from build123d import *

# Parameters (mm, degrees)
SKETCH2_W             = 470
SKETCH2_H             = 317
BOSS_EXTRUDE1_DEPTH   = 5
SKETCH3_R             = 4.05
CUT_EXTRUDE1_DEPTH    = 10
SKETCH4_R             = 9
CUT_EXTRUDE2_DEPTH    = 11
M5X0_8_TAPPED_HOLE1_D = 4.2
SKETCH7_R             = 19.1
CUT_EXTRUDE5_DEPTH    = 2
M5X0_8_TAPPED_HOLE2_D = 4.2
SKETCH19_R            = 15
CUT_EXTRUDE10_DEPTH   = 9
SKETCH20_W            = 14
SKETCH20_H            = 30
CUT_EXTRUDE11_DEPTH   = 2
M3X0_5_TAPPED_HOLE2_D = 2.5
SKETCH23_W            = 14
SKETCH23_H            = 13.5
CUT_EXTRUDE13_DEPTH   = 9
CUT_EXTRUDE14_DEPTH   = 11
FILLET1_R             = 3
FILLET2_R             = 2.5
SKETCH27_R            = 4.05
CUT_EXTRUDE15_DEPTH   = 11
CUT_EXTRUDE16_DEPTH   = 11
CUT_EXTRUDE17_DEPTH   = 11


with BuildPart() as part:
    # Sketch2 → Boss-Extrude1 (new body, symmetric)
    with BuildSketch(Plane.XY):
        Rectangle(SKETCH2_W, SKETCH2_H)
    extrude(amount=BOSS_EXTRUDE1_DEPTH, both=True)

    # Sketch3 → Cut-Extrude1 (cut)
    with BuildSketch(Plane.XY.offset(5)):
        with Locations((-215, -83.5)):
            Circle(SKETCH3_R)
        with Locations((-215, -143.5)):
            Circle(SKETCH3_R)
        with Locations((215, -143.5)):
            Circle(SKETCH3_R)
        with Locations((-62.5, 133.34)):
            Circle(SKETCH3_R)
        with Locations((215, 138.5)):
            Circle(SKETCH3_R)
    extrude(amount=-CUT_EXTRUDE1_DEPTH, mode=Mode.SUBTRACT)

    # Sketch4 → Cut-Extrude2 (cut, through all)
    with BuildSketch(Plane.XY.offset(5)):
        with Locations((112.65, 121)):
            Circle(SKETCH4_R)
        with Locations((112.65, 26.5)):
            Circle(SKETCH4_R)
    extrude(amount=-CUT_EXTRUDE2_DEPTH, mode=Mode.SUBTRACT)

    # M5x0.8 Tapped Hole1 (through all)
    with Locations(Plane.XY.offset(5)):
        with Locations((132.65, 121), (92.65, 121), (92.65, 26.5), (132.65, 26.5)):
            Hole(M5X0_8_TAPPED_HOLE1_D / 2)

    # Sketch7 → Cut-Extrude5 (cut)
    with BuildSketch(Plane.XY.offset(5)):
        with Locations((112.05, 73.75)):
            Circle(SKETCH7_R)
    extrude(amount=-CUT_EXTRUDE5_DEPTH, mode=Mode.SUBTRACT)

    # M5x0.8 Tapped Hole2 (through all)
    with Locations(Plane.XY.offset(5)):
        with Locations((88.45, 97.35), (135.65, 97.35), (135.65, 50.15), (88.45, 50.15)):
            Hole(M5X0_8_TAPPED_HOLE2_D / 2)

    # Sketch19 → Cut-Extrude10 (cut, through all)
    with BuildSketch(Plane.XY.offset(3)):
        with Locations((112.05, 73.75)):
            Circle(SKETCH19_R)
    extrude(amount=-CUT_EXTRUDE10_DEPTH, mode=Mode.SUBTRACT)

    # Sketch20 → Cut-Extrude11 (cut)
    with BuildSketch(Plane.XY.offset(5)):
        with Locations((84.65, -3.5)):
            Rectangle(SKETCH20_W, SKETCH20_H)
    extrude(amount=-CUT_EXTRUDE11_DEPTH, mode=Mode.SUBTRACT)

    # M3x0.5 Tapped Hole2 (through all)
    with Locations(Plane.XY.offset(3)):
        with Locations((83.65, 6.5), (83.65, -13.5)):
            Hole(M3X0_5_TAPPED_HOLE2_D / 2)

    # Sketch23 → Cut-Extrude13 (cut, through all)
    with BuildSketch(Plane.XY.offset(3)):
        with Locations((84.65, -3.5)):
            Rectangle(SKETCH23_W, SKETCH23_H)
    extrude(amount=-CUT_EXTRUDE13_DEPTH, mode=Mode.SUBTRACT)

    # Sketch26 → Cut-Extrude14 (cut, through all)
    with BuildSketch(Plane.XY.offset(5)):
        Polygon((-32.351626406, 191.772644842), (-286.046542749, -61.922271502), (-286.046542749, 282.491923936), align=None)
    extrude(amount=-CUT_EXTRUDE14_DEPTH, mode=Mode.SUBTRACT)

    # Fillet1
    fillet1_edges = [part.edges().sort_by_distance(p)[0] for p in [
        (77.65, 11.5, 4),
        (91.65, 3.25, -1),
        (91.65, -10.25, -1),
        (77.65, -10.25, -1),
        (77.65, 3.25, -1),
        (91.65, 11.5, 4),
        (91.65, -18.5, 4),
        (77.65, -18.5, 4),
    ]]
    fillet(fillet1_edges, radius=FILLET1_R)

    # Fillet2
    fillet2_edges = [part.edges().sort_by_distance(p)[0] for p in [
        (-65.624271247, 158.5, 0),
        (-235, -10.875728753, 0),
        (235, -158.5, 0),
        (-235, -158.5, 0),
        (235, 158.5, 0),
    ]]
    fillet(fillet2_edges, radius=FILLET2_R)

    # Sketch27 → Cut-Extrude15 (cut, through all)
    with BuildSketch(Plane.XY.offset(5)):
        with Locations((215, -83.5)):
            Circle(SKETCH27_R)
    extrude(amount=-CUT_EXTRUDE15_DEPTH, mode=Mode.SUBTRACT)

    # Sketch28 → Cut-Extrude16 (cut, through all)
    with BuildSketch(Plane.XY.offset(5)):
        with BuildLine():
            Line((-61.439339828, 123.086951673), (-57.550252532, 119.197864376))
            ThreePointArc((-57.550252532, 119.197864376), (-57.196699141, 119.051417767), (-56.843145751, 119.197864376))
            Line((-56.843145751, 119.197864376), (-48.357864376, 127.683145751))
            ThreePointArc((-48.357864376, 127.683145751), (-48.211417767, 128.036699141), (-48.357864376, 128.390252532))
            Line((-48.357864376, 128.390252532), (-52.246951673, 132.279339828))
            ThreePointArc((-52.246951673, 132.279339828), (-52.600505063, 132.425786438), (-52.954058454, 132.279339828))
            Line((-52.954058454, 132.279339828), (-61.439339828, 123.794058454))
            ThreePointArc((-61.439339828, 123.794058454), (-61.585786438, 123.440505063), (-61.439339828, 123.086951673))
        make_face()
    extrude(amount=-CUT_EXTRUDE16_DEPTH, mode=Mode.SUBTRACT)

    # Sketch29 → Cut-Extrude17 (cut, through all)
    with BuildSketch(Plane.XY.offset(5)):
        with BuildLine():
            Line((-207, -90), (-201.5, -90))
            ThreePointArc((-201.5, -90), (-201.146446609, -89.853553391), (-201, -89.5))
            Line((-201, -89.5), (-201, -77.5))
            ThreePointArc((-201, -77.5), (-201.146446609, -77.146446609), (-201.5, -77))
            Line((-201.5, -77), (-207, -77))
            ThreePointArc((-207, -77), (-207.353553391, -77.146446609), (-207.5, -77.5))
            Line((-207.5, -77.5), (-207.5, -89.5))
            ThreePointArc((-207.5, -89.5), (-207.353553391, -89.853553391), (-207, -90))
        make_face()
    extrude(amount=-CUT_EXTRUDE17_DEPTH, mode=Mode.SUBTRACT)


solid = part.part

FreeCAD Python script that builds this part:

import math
import FreeCAD as App
import Part
import Sketcher
from FreeCAD import Vector
Q = App.Units.Quantity


def edges_at(feature, points):
    """Names of the edges that pass closest to the given points."""
    edges = feature.Shape.Edges
    near = lambda p: min(range(len(edges)), key=lambda i: edges[i].distToShape(Part.Vertex(*p))[0])
    return sorted({f"Edge{near(p) + 1}" for p in points})


def add_polygon(sketch, points):
    """Adds a closed chain of lines whose ends are joined by coincident constraints."""
    first, n = sketch.GeometryCount, len(points)
    for a, b in zip(points, points[1:] + points[:1]):
        sketch.addGeometry(Part.LineSegment(App.Vector(*a, 0), App.Vector(*b, 0)), False)
    for i in range(n):
        sketch.addConstraint(Sketcher.Constraint("Coincident", first + i, 2, first + (i + 1) % n, 1))

doc = App.newDocument("Part")
body = doc.addObject("PartDesign::Body", "Body")

sketch1 = body.newObject("Sketcher::SketchObject", "Sketch")
sketch1.AttachmentSupport = (doc.getObject("XY_Plane"), [""])
sketch1.MapMode = "FlatFace"
add_polygon(sketch1, [(-235, 158), (-235, -158), (235, -158), (235, 158)])
sketch1.addConstraint(Sketcher.Constraint("Vertical", 0))
sketch1.addConstraint(Sketcher.Constraint("Horizontal", 1))
sketch1.addConstraint(Sketcher.Constraint("Vertical", 2))
sketch1.addConstraint(Sketcher.Constraint("Horizontal", 3))
sketch1.addConstraint(Sketcher.Constraint("Symmetric", 0, 2, 2, 2, -1, 1))
sketch1.addConstraint(Sketcher.Constraint("DistanceX", 1, 1, 1, 2, Q("470 mm")))
sketch1.addConstraint(Sketcher.Constraint("DistanceY", 0, 2, 0, 1, Q("317 mm")))
pad1 = body.newObject("PartDesign::Pad", "Pad")
pad1.Profile = sketch1
pad1.Length = 10
pad1.Midplane = True

sketch2 = body.newObject("Sketcher::SketchObject", "Sketch001")
sketch2.AttachmentSupport = (doc.getObject("XY_Plane"), [""])
sketch2.MapMode = "FlatFace"
sketch2.AttachmentOffset = App.Placement(Vector(0, 0, 5), App.Rotation())
sketch2.addGeometry(Part.Circle(Vector(-215, -83.5, 0), Vector(0, 0, 1), 4), False)
sketch2.addGeometry(Part.Circle(Vector(-215, -143.5, 0), Vector(0, 0, 1), 4), False)
sketch2.addGeometry(Part.Circle(Vector(215, -143.5, 0), Vector(0, 0, 1), 4), False)
sketch2.addGeometry(Part.Circle(Vector(-62.5, 133.3, 0), Vector(0, 0, 1), 4), False)
sketch2.addGeometry(Part.Circle(Vector(215, 138.5, 0), Vector(0, 0, 1), 4), False)
sketch2.addConstraint(Sketcher.Constraint("Equal", 0, 1))
sketch2.addConstraint(Sketcher.Constraint("Equal", 1, 2))
sketch2.addConstraint(Sketcher.Constraint("Equal", 2, 3))
sketch2.addConstraint(Sketcher.Constraint("Equal", 3, 4))
sketch2.addConstraint(Sketcher.Constraint("Symmetric", 1, 3, 2, 3, -2))
sketch2.addConstraint(Sketcher.Constraint("Vertical", 0, 3, 1, 3))
sketch2.addConstraint(Sketcher.Constraint("Vertical", 2, 3, 4, 3))
sketch2.addConstraint(Sketcher.Constraint("Diameter", 0, Q("8.1 mm")))
sketch2.addConstraint(Sketcher.Constraint("DistanceX", 0, 3, -1, 1, Q("215 mm")))
sketch2.addConstraint(Sketcher.Constraint("DistanceY", 1, 3, 0, 3, Q("60 mm")))
sketch2.addConstraint(Sketcher.Constraint("DistanceY", 2, 3, 4, 3, Q("282 mm")))
sketch2.addConstraint(Sketcher.Constraint("DistanceY", 0, 3, -1, 1, Q("83.5 mm")))
sketch2.addConstraint(Sketcher.Constraint("DistanceX", 3, 3, -1, 1, Q("62.5 mm")))
sketch2.addConstraint(Sketcher.Constraint("DistanceY", -1, 1, 3, 3, Q("133.34 mm")))
pocket1 = body.newObject("PartDesign::Pocket", "Pocket")
pocket1.Profile = sketch2
pocket1.Length = 10

sketch3 = body.newObject("Sketcher::SketchObject", "Sketch002")
sketch3.AttachmentSupport = (doc.getObject("XY_Plane"), [""])
sketch3.MapMode = "FlatFace"
sketch3.AttachmentOffset = App.Placement(Vector(0, 0, 5), App.Rotation())
sketch3.addGeometry(Part.Circle(Vector(113, 121, 0), Vector(0, 0, 1), 9), False)
sketch3.addGeometry(Part.Circle(Vector(113, 26, 0), Vector(0, 0, 1), 9), False)
sketch3.addConstraint(Sketcher.Constraint("Equal", 0, 1))
sketch3.addConstraint(Sketcher.Constraint("Vertical", 0, 3, 1, 3))
sketch3.addConstraint(Sketcher.Constraint("Diameter", 0, Q("18 mm")))
sketch3.addConstraint(Sketcher.Constraint("DistanceY", -1, 1, 0, 3, Q("121 mm")))
sketch3.addConstraint(Sketcher.Constraint("DistanceY", -1, 1, 1, 3, Q("26.5 mm")))
sketch3.addConstraint(Sketcher.Constraint("DistanceX", -1, 1, 0, 3, Q("112.65 mm")))
pocket2 = body.newObject("PartDesign::Pocket", "Pocket001")
pocket2.Profile = sketch3
pocket2.Type = "ThroughAll"

sketch4 = body.newObject("Sketcher::SketchObject", "Sketch003")
sketch4.AttachmentSupport = (doc.getObject("XY_Plane"), [""])
sketch4.MapMode = "FlatFace"
sketch4.AttachmentOffset = App.Placement(Vector(0, 0, 5), App.Rotation())
sketch4.addGeometry(Part.Circle(Vector(132.7, 121, 0), Vector(0, 0, 1), 2.1), False)
sketch4.addGeometry(Part.Circle(Vector(92.7, 121, 0), Vector(0, 0, 1), 2.1), False)
sketch4.addGeometry(Part.Circle(Vector(92.7, 26.5, 0), Vector(0, 0, 1), 2.1), False)
sketch4.addGeometry(Part.Circle(Vector(132.7, 26.5, 0), Vector(0, 0, 1), 2.1), False)
sketch4.addConstraint(Sketcher.Constraint("Equal", 0, 1))
sketch4.addConstraint(Sketcher.Constraint("Equal", 1, 2))
sketch4.addConstraint(Sketcher.Constraint("Equal", 2, 3))
sketch4.addConstraint(Sketcher.Constraint("Horizontal", 0, 3, 1, 3))
sketch4.addConstraint(Sketcher.Constraint("Horizontal", 2, 3, 3, 3))
sketch4.addConstraint(Sketcher.Constraint("Vertical", 1, 3, 2, 3))
sketch4.addConstraint(Sketcher.Constraint("Vertical", 0, 3, 3, 3))
sketch4.addConstraint(Sketcher.Constraint("Diameter", 0, Q("4.2 mm")))
sketch4.addConstraint(Sketcher.Constraint("DistanceY", -1, 1, 0, 3, Q("121 mm")))
sketch4.addConstraint(Sketcher.Constraint("DistanceX", 1, 3, 0, 3, Q("40 mm")))
sketch4.addConstraint(Sketcher.Constraint("DistanceY", -1, 1, 2, 3, Q("26.5 mm")))
sketch4.addConstraint(Sketcher.Constraint("DistanceX", -1, 1, 0, 3, Q("132.65 mm")))
doc.recompute()
hole = body.newObject("PartDesign::Hole", "Hole")
hole.Profile = sketch4
hole.ThreadType = "None"
hole.Diameter = 4.2
hole.DepthType = "ThroughAll"

sketch5 = body.newObject("Sketcher::SketchObject", "Sketch004")
sketch5.AttachmentSupport = (doc.getObject("XY_Plane"), [""])
sketch5.MapMode = "FlatFace"
sketch5.AttachmentOffset = App.Placement(Vector(0, 0, 5), App.Rotation())
sketch5.addGeometry(Part.Circle(Vector(112, 74, 0), Vector(0, 0, 1), 19), False)
sketch5.addConstraint(Sketcher.Constraint("Diameter", 0, Q("38.2 mm")))
sketch5.addConstraint(Sketcher.Constraint("DistanceX", -1, 1, 0, 3, Q("112.05 mm")))
sketch5.addConstraint(Sketcher.Constraint("DistanceY", -1, 1, 0, 3, Q("73.75 mm")))
pocket3 = body.newObject("PartDesign::Pocket", "Pocket002")
pocket3.Profile = sketch5
pocket3.Length = 2

sketch6 = body.newObject("Sketcher::SketchObject", "Sketch005")
sketch6.AttachmentSupport = (doc.getObject("XY_Plane"), [""])
sketch6.MapMode = "FlatFace"
sketch6.AttachmentOffset = App.Placement(Vector(0, 0, 5), App.Rotation())
sketch6.addGeometry(Part.Circle(Vector(88.5, 97.3, 0), Vector(0, 0, 1), 2.1), False)
sketch6.addGeometry(Part.Circle(Vector(135.7, 97.3, 0), Vector(0, 0, 1), 2.1), False)
sketch6.addGeometry(Part.Circle(Vector(135.7, 50.1, 0), Vector(0, 0, 1), 2.1), False)
sketch6.addGeometry(Part.Circle(Vector(88.5, 50.1, 0), Vector(0, 0, 1), 2.1), False)
sketch6.addConstraint(Sketcher.Constraint("Equal", 0, 1))
sketch6.addConstraint(Sketcher.Constraint("Equal", 1, 2))
sketch6.addConstraint(Sketcher.Constraint("Equal", 2, 3))
sketch6.addConstraint(Sketcher.Constraint("Horizontal", 0, 3, 1, 3))
sketch6.addConstraint(Sketcher.Constraint("Horizontal", 2, 3, 3, 3))
sketch6.addConstraint(Sketcher.Constraint("Vertical", 1, 3, 2, 3))
sketch6.addConstraint(Sketcher.Constraint("Vertical", 0, 3, 3, 3))
sketch6.addConstraint(Sketcher.Constraint("Diameter", 0, Q("4.2 mm")))
sketch6.addConstraint(Sketcher.Constraint("DistanceX", 0, 3, 1, 3, Q("47.2 mm")))
sketch6.addConstraint(Sketcher.Constraint("DistanceY", 2, 3, 1, 3, Q("47.2 mm")))
sketch6.addConstraint(Sketcher.Constraint("DistanceX", -1, 1, 0, 3, Q("88.45 mm")))
sketch6.addConstraint(Sketcher.Constraint("DistanceY", -1, 1, 0, 3, Q("97.35 mm")))
doc.recompute()
hole2 = body.newObject("PartDesign::Hole", "Hole001")
hole2.Profile = sketch6
hole2.ThreadType = "None"
hole2.Diameter = 4.2
hole2.DepthType = "ThroughAll"

sketch7 = body.newObject("Sketcher::SketchObject", "Sketch006")
sketch7.AttachmentSupport = (doc.getObject("XY_Plane"), [""])
sketch7.MapMode = "FlatFace"
sketch7.AttachmentOffset = App.Placement(Vector(0, 0, 3), App.Rotation())
sketch7.addGeometry(Part.Circle(Vector(112, 74, 0), Vector(0, 0, 1), 15), False)
sketch7.addConstraint(Sketcher.Constraint("Diameter", 0, Q("30 mm")))
sketch7.addConstraint(Sketcher.Constraint("DistanceX", -1, 1, 0, 3, Q("112.05 mm")))
sketch7.addConstraint(Sketcher.Constraint("DistanceY", -1, 1, 0, 3, Q("73.75 mm")))
pocket4 = body.newObject("PartDesign::Pocket", "Pocket003")
pocket4.Profile = sketch7
pocket4.Type = "ThroughAll"

sketch8 = body.newObject("Sketcher::SketchObject", "Sketch007")
sketch8.AttachmentSupport = (doc.getObject("XY_Plane"), [""])
sketch8.MapMode = "FlatFace"
sketch8.AttachmentOffset = App.Placement(Vector(0, 0, 5), App.Rotation())
add_polygon(sketch8, [(78, 12), (78, -18), (92, -18), (92, 12)])
sketch8.addConstraint(Sketcher.Constraint("Vertical", 0))
sketch8.addConstraint(Sketcher.Constraint("Horizontal", 1))
sketch8.addConstraint(Sketcher.Constraint("Vertical", 2))
sketch8.addConstraint(Sketcher.Constraint("Horizontal", 3))
sketch8.addConstraint(Sketcher.Constraint("DistanceX", 1, 1, 1, 2, Q("14 mm")))
sketch8.addConstraint(Sketcher.Constraint("DistanceY", 0, 2, 0, 1, Q("30 mm")))
sketch8.addConstraint(Sketcher.Constraint("DistanceY", 0, 2, -1, 1, Q("18.5 mm")))
sketch8.addConstraint(Sketcher.Constraint("DistanceX", -1, 1, 0, 2, Q("77.65 mm")))
pocket5 = body.newObject("PartDesign::Pocket", "Pocket004")
pocket5.Profile = sketch8
pocket5.Length = 2

sketch9 = body.newObject("Sketcher::SketchObject", "Sketch008")
sketch9.AttachmentSupport = (doc.getObject("XY_Plane"), [""])
sketch9.MapMode = "FlatFace"
sketch9.AttachmentOffset = App.Placement(Vector(0, 0, 3), App.Rotation())
sketch9.addGeometry(Part.Circle(Vector(83.7, 6.5, 0), Vector(0, 0, 1), 1.2), False)
sketch9.addGeometry(Part.Circle(Vector(83.7, -13.5, 0), Vector(0, 0, 1), 1.2), False)
sketch9.addConstraint(Sketcher.Constraint("Equal", 0, 1))
sketch9.addConstraint(Sketcher.Constraint("Vertical", 0, 3, 1, 3))
sketch9.addConstraint(Sketcher.Constraint("Diameter", 0, Q("2.5 mm")))
sketch9.addConstraint(Sketcher.Constraint("DistanceY", 1, 3, 0, 3, Q("20 mm")))
sketch9.addConstraint(Sketcher.Constraint("DistanceY", -1, 1, 0, 3, Q("6.5 mm")))
sketch9.addConstraint(Sketcher.Constraint("DistanceX", -1, 1, 0, 3, Q("83.65 mm")))
doc.recompute()
hole3 = body.newObject("PartDesign::Hole", "Hole002")
hole3.Profile = sketch9
hole3.ThreadType = "None"
hole3.Diameter = 2.5
hole3.DepthType = "ThroughAll"

sketch10 = body.newObject("Sketcher::SketchObject", "Sketch009")
sketch10.AttachmentSupport = (doc.getObject("XY_Plane"), [""])
sketch10.MapMode = "FlatFace"
sketch10.AttachmentOffset = App.Placement(Vector(0, 0, 3), App.Rotation())
add_polygon(sketch10, [(78, 3), (78, -10), (92, -10), (92, 3)])
sketch10.addConstraint(Sketcher.Constraint("Vertical", 0))
sketch10.addConstraint(Sketcher.Constraint("Horizontal", 1))
sketch10.addConstraint(Sketcher.Constraint("Vertical", 2))
sketch10.addConstraint(Sketcher.Constraint("Horizontal", 3))
sketch10.addConstraint(Sketcher.Constraint("DistanceX", 1, 1, 1, 2, Q("14 mm")))
sketch10.addConstraint(Sketcher.Constraint("DistanceY", 0, 2, 0, 1, Q("13.5 mm")))
sketch10.addConstraint(Sketcher.Constraint("DistanceX", -1, 1, 0, 2, Q("77.65 mm")))
sketch10.addConstraint(Sketcher.Constraint("DistanceY", 0, 2, -1, 1, Q("10.25 mm")))
pocket6 = body.newObject("PartDesign::Pocket", "Pocket005")
pocket6.Profile = sketch10
pocket6.Type = "ThroughAll"

sketch11 = body.newObject("Sketcher::SketchObject", "Sketch010")
sketch11.AttachmentSupport = (doc.getObject("XY_Plane"), [""])
sketch11.MapMode = "FlatFace"
sketch11.AttachmentOffset = App.Placement(Vector(0, 0, 5), App.Rotation())
add_polygon(sketch11, [(-286, -62), (-32, 192), (-286, 282)])
sketch11.addConstraint(Sketcher.Constraint("Vertical", 2))
sketch11.addConstraint(Sketcher.Constraint("Angle", 0, Q("45 deg")))
sketch11.addConstraint(Sketcher.Constraint("Distance", 0, Q("358.778791 mm")))
sketch11.addConstraint(Sketcher.Constraint("DistanceY", 2, 2, 2, 1, Q("344.414195 mm")))
sketch11.addConstraint(Sketcher.Constraint("DistanceY", 2, 2, -1, 1, Q("61.922272 mm")))
sketch11.addConstraint(Sketcher.Constraint("DistanceX", 0, 2, -1, 1, Q("32.351626 mm")))
pocket7 = body.newObject("PartDesign::Pocket", "Pocket006")
pocket7.Profile = sketch11
pocket7.Type = "ThroughAll"
doc.recompute()

fillet = body.newObject("PartDesign::Fillet", "Fillet")
fillet.Base = (pocket7, edges_at(pocket7, [
    (77.65, 11.5, 4),
    (91.65, 3.25, -1),
    (91.65, -10.25, -1),
    (77.65, -10.25, -1),
    (77.65, 3.25, -1),
    (91.65, 11.5, 4),
    (91.65, -18.5, 4),
    (77.65, -18.5, 4),
]))
fillet.Radius = 3
doc.recompute()

fillet2 = body.newObject("PartDesign::Fillet", "Fillet001")
fillet2.Base = (fillet, edges_at(fillet, [
    (-65.624, 158.5, 0),
    (-235, -10.876, 0),
    (235, -158.5, 0),
    (-235, -158.5, 0),
    (235, 158.5, 0),
]))
fillet2.Radius = 2.5

sketch12 = body.newObject("Sketcher::SketchObject", "Sketch011")
sketch12.AttachmentSupport = (doc.getObject("XY_Plane"), [""])
sketch12.MapMode = "FlatFace"
sketch12.AttachmentOffset = App.Placement(Vector(0, 0, 5), App.Rotation())
sketch12.addGeometry(Part.Circle(Vector(215, -83.5, 0), Vector(0, 0, 1), 4), False)
sketch12.addConstraint(Sketcher.Constraint("Diameter", 0, Q("8.1 mm")))
sketch12.addConstraint(Sketcher.Constraint("DistanceX", -1, 1, 0, 3, Q("215 mm")))
sketch12.addConstraint(Sketcher.Constraint("DistanceY", 0, 3, -1, 1, Q("83.5 mm")))
pocket8 = body.newObject("PartDesign::Pocket", "Pocket007")
pocket8.Profile = sketch12
pocket8.Type = "ThroughAll"

sketch13 = body.newObject("Sketcher::SketchObject", "Sketch012")
sketch13.AttachmentSupport = (doc.getObject("XY_Plane"), [""])
sketch13.MapMode = "FlatFace"
sketch13.AttachmentOffset = App.Placement(Vector(0, 0, 5), App.Rotation())
sketch13.addGeometry(Part.LineSegment(Vector(-61.44, 123.09, 0), Vector(-57.55, 119.2, 0)), False)
sketch13.addGeometry(Part.ArcOfCircle(Part.Circle(Vector(-57.2, 119.55, 0), Vector(0, 0, 1), 0.5), math.radians(-135), math.radians(-45)), False)
sketch13.addGeometry(Part.LineSegment(Vector(-56.84, 119.2, 0), Vector(-48.36, 127.68, 0)), False)
sketch13.addGeometry(Part.ArcOfCircle(Part.Circle(Vector(-48.71, 128.04, 0), Vector(0, 0, 1), 0.5), math.radians(-45), math.radians(45)), False)
sketch13.addGeometry(Part.LineSegment(Vector(-48.36, 128.39, 0), Vector(-52.25, 132.28, 0)), False)
sketch13.addGeometry(Part.ArcOfCircle(Part.Circle(Vector(-52.6, 131.93, 0), Vector(0, 0, 1), 0.5), math.radians(45), math.radians(135)), False)
sketch13.addGeometry(Part.LineSegment(Vector(-52.95, 132.28, 0), Vector(-61.44, 123.79, 0)), False)
sketch13.addGeometry(Part.ArcOfCircle(Part.Circle(Vector(-61.09, 123.44, 0), Vector(0, 0, 1), 0.5), math.radians(135), math.radians(225)), False)
sketch13.addConstraint(Sketcher.Constraint("Tangent", 0, 2, 1, 1))
sketch13.addConstraint(Sketcher.Constraint("Tangent", 1, 2, 2, 1))
sketch13.addConstraint(Sketcher.Constraint("Tangent", 2, 2, 3, 1))
sketch13.addConstraint(Sketcher.Constraint("Tangent", 3, 2, 4, 1))
sketch13.addConstraint(Sketcher.Constraint("Tangent", 4, 2, 5, 1))
sketch13.addConstraint(Sketcher.Constraint("Tangent", 5, 2, 6, 1))
sketch13.addConstraint(Sketcher.Constraint("Tangent", 6, 2, 7, 1))
sketch13.addConstraint(Sketcher.Constraint("Tangent", 7, 2, 0, 1))
sketch13.addConstraint(Sketcher.Constraint("Equal", 1, 3))
sketch13.addConstraint(Sketcher.Constraint("Equal", 3, 5))
sketch13.addConstraint(Sketcher.Constraint("Equal", 5, 7))
sketch13.addConstraint(Sketcher.Constraint("Perpendicular", 0, 2))
sketch13.addConstraint(Sketcher.Constraint("Perpendicular", 2, 4))
sketch13.addConstraint(Sketcher.Constraint("Perpendicular", 4, 6))
sketch13.addConstraint(Sketcher.Constraint("Horizontal", 0, 2, 1, 2))
sketch13.addConstraint(Sketcher.Constraint("Radius", 1, Q("0.5 mm")))
sketch13.addConstraint(Sketcher.Constraint("Distance", 2, Q("12 mm")))
sketch13.addConstraint(Sketcher.Constraint("Distance", 0, Q("5.5 mm")))
sketch13.addConstraint(Sketcher.Constraint("DistanceX", 1, 3, -1, 1, Q("57.196699 mm")))
sketch13.addConstraint(Sketcher.Constraint("DistanceY", -1, 1, 3, 3, Q("128.036699 mm")))
pocket9 = body.newObject("PartDesign::Pocket", "Pocket008")
pocket9.Profile = sketch13
pocket9.Type = "ThroughAll"

sketch14 = body.newObject("Sketcher::SketchObject", "Sketch013")
sketch14.AttachmentSupport = (doc.getObject("XY_Plane"), [""])
sketch14.MapMode = "FlatFace"
sketch14.AttachmentOffset = App.Placement(Vector(0, 0, 5), App.Rotation())
sketch14.addGeometry(Part.LineSegment(Vector(-207, -90, 0), Vector(-201.5, -90, 0)), False)
sketch14.addGeometry(Part.ArcOfCircle(Part.Circle(Vector(-201.5, -89.5, 0), Vector(0, 0, 1), 0.5), math.radians(-90), math.radians(0)), False)
sketch14.addGeometry(Part.LineSegment(Vector(-201, -89.5, 0), Vector(-201, -77.5, 0)), False)
sketch14.addGeometry(Part.ArcOfCircle(Part.Circle(Vector(-201.5, -77.5, 0), Vector(0, 0, 1), 0.5), math.radians(0), math.radians(90)), False)
sketch14.addGeometry(Part.LineSegment(Vector(-201.5, -77, 0), Vector(-207, -77, 0)), False)
sketch14.addGeometry(Part.ArcOfCircle(Part.Circle(Vector(-207, -77.5, 0), Vector(0, 0, 1), 0.5), math.radians(90), math.radians(180)), False)
sketch14.addGeometry(Part.LineSegment(Vector(-207.5, -77.5, 0), Vector(-207.5, -89.5, 0)), False)
sketch14.addGeometry(Part.ArcOfCircle(Part.Circle(Vector(-207, -89.5, 0), Vector(0, 0, 1), 0.5), math.radians(180), math.radians(270)), False)
sketch14.addConstraint(Sketcher.Constraint("Tangent", 0, 2, 1, 1))
sketch14.addConstraint(Sketcher.Constraint("Tangent", 1, 2, 2, 1))
sketch14.addConstraint(Sketcher.Constraint("Tangent", 2, 2, 3, 1))
sketch14.addConstraint(Sketcher.Constraint("Tangent", 3, 2, 4, 1))
sketch14.addConstraint(Sketcher.Constraint("Tangent", 4, 2, 5, 1))
sketch14.addConstraint(Sketcher.Constraint("Tangent", 5, 2, 6, 1))
sketch14.addConstraint(Sketcher.Constraint("Tangent", 6, 2, 7, 1))
sketch14.addConstraint(Sketcher.Constraint("Tangent", 7, 2, 0, 1))
sketch14.addConstraint(Sketcher.Constraint("Horizontal", 0))
sketch14.addConstraint(Sketcher.Constraint("Vertical", 2))
sketch14.addConstraint(Sketcher.Constraint("Horizontal", 4))
sketch14.addConstraint(Sketcher.Constraint("Vertical", 6))
sketch14.addConstraint(Sketcher.Constraint("Equal", 1, 3))
sketch14.addConstraint(Sketcher.Constraint("Equal", 3, 5))
sketch14.addConstraint(Sketcher.Constraint("Equal", 5, 7))
sketch14.addConstraint(Sketcher.Constraint("Radius", 1, Q("0.5 mm")))
sketch14.addConstraint(Sketcher.Constraint("DistanceY", 2, 1, 2, 2, Q("12 mm")))
sketch14.addConstraint(Sketcher.Constraint("DistanceX", 0, 1, 0, 2, Q("5.5 mm")))
sketch14.addConstraint(Sketcher.Constraint("DistanceX", 5, 3, -1, 1, Q("207 mm")))
sketch14.addConstraint(Sketcher.Constraint("DistanceY", 0, 2, -1, 1, Q("90 mm")))
pocket10 = body.newObject("PartDesign::Pocket", "Pocket009")
pocket10.Profile = sketch14
pocket10.Type = "ThroughAll"

doc.recompute()
